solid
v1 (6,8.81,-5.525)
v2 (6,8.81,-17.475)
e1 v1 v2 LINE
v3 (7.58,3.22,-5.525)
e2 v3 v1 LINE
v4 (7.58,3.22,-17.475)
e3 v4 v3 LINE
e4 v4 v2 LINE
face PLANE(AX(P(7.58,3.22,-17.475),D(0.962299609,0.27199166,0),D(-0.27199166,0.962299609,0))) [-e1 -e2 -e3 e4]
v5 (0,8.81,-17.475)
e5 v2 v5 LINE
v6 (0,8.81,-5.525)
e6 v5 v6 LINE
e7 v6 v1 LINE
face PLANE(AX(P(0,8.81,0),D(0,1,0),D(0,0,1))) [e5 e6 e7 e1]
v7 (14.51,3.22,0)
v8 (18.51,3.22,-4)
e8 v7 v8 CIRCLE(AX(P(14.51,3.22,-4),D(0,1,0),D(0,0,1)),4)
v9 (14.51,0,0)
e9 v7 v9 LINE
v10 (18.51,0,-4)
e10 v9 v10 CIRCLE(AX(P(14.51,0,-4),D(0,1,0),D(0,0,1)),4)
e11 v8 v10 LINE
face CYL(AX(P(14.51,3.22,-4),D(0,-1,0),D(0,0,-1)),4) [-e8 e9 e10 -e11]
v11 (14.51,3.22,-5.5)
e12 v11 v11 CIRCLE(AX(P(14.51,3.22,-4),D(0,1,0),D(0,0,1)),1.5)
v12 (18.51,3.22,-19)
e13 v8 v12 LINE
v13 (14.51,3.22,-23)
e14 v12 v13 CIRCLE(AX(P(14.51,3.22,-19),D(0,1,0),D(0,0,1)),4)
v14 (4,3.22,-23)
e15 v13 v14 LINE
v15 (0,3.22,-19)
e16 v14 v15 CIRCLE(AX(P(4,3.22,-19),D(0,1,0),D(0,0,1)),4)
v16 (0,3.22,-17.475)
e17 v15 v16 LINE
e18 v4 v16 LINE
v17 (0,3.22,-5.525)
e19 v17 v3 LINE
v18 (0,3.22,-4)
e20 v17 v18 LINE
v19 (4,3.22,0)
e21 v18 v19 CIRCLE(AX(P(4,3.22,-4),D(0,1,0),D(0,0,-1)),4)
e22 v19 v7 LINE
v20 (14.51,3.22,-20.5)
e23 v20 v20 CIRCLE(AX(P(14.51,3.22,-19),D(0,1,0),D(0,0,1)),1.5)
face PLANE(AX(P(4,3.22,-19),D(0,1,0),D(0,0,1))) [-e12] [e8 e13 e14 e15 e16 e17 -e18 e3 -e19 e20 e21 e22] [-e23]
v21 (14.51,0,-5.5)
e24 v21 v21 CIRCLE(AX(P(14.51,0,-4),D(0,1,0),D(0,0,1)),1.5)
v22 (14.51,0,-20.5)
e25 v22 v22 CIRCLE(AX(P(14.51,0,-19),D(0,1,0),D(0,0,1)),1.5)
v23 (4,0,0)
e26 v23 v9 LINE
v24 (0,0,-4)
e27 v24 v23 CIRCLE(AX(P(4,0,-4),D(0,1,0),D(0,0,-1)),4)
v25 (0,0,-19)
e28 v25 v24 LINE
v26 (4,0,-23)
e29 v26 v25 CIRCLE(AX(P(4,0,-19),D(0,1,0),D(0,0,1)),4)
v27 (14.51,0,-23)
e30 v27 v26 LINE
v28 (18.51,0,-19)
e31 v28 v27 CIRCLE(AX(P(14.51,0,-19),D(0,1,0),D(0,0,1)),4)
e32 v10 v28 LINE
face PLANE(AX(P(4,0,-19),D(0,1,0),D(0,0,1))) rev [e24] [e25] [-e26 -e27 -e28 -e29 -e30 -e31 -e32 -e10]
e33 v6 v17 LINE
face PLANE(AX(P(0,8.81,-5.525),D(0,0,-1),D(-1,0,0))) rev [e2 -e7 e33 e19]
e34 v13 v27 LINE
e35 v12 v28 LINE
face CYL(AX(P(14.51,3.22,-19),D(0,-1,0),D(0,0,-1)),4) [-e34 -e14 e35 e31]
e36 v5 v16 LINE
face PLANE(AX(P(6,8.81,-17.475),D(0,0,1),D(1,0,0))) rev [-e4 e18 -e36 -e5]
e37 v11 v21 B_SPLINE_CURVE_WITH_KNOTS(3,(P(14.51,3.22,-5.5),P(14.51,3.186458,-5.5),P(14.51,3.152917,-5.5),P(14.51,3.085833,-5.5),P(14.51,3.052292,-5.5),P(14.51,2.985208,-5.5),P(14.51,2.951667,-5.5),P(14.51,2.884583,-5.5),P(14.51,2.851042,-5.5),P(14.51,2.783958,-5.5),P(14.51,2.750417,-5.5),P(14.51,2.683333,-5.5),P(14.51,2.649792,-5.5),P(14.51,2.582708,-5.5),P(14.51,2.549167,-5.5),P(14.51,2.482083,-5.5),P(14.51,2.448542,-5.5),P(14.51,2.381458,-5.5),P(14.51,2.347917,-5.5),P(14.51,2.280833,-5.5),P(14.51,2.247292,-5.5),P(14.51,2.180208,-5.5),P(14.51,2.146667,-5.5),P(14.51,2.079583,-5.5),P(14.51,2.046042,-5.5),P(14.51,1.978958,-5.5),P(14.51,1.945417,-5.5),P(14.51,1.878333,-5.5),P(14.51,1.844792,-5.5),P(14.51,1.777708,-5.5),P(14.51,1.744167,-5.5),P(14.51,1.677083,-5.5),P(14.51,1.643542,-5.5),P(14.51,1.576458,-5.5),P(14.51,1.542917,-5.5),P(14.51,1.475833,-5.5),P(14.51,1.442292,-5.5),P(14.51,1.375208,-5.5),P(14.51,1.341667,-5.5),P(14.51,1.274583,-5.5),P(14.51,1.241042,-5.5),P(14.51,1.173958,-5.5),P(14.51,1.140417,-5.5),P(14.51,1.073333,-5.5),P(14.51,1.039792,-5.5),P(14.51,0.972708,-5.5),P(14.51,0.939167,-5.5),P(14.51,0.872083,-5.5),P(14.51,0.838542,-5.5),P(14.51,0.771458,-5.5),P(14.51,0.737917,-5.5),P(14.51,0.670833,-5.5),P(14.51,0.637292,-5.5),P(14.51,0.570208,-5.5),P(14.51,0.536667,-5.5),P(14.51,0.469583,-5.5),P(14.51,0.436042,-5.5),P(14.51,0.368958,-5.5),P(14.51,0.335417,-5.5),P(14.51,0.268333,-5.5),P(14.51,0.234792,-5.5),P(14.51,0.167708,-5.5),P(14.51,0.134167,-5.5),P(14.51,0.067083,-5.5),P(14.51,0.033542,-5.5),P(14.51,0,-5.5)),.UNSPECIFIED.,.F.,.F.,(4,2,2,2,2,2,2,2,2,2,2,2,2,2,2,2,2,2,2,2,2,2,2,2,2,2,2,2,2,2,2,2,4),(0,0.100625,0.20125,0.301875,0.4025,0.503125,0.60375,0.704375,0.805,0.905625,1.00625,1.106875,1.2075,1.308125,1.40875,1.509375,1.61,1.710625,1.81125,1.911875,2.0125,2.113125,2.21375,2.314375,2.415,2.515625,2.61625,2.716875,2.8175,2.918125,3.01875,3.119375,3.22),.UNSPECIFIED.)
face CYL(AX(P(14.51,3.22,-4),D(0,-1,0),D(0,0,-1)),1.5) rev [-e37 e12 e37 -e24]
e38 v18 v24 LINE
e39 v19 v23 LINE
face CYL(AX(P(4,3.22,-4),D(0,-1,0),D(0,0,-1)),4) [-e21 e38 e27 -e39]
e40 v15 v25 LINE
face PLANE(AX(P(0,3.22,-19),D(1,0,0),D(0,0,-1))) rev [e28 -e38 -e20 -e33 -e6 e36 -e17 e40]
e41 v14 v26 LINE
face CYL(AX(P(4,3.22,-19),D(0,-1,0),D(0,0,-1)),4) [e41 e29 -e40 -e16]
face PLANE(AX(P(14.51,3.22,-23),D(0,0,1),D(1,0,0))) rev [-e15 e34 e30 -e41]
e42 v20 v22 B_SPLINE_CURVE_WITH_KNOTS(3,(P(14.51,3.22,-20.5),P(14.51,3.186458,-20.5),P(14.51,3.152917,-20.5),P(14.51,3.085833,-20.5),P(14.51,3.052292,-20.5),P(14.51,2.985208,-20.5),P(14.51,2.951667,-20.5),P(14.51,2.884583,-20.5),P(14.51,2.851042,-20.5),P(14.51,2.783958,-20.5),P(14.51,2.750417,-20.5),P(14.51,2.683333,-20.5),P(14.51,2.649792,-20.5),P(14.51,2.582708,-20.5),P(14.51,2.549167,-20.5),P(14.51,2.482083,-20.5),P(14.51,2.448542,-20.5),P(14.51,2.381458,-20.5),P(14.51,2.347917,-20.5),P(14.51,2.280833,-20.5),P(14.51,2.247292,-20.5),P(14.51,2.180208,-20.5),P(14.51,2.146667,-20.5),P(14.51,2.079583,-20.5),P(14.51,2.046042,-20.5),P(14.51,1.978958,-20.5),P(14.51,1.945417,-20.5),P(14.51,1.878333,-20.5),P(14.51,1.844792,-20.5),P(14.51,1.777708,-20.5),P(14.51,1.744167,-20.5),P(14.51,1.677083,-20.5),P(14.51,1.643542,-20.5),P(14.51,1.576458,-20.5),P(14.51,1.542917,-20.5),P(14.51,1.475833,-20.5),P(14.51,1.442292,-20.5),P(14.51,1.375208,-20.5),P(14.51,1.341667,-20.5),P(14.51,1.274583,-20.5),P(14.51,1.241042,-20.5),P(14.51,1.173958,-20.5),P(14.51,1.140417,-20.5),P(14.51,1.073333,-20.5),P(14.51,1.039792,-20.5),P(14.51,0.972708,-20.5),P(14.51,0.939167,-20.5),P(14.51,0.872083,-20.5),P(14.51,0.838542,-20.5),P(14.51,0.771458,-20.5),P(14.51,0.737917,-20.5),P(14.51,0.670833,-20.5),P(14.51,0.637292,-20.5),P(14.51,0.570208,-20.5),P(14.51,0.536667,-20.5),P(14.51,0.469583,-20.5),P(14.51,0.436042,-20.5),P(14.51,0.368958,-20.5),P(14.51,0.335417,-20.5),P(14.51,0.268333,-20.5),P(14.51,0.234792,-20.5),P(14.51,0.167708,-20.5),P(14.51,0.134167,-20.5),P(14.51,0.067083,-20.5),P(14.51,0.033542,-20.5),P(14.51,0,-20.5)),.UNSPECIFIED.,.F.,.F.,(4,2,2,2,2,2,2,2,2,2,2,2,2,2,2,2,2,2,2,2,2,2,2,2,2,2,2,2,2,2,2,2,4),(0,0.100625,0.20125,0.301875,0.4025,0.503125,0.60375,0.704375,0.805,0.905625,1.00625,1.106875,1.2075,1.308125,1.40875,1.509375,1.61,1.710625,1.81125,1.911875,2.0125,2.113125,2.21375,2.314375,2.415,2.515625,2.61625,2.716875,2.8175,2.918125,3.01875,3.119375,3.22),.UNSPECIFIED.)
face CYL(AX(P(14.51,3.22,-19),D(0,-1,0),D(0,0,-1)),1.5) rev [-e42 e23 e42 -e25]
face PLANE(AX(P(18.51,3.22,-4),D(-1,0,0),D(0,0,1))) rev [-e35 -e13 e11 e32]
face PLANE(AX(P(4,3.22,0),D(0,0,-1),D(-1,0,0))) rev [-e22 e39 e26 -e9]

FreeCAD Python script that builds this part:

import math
import FreeCAD as App
import Part
import Sketcher

V = App.Vector
Q = App.Units.Quantity


def add_polygon(sketch, points):
    """Adds a closed chain of lines whose ends are joined by coincident constraints."""
    first, n = sketch.GeometryCount, len(points)
    for a, b in zip(points, points[1:] + points[:1]):
        sketch.addGeometry(Part.LineSegment(App.Vector(*a, 0), App.Vector(*b, 0)), False)
    for i in range(n):
        sketch.addConstraint(Sketcher.Constraint("Coincident", first + i, 2, first + (i + 1) % n, 1))

doc = App.newDocument("Part")
body = doc.addObject("PartDesign::Body", "Body")

# Sketch on XZ plane
sketch1 = doc.addObject("Sketcher::SketchObject", "Sketch")
body.addObject(sketch1)
sketch1.AttachmentSupport = (doc.XZ_Plane, [""])
sketch1.MapMode = "FlatFace"
sketch1.addGeometry([
    Part.LineSegment(V(4, 0, 0), V(14.51, 0, 0)),  # 0
    Part.ArcOfCircle(Part.Circle(V(14.51, -4, 0), V(0, 0, 1), 4), math.radians(0), math.radians(90)),  # 1
    Part.LineSegment(V(18.51, -4, 0), V(18.51, -19, 0)),  # 2
    Part.ArcOfCircle(Part.Circle(V(14.51, -19, 0), V(0, 0, 1), 4), math.radians(-90), math.radians(0)),  # 3
    Part.LineSegment(V(14.51, -23, 0), V(4, -23, 0)),  # 4
    Part.ArcOfCircle(Part.Circle(V(4, -19, 0), V(0, 0, 1), 4), math.radians(180), math.radians(270)),  # 5
    Part.LineSegment(V(0, -19, 0), V(0, -4, 0)),  # 6
    Part.ArcOfCircle(Part.Circle(V(4, -4, 0), V(0, 0, 1), 4), math.radians(90), math.radians(180)),  # 7
    Part.Circle(V(14.51, -4, 0), V(0, 0, 1), 1.5),  # 8
    Part.Circle(V(14.51, -19, 0), V(0, 0, 1), 1.5),  # 9
], False)
sketch1.addConstraint([
    Sketcher.Constraint("Tangent", 0, 2, 1, 2),
    Sketcher.Constraint("Tangent", 1, 1, 2, 1),
    Sketcher.Constraint("Tangent", 2, 2, 3, 2),
    Sketcher.Constraint("Tangent", 3, 1, 4, 1),
    Sketcher.Constraint("Tangent", 4, 2, 5, 2),
    Sketcher.Constraint("Tangent", 5, 1, 6, 1),
    Sketcher.Constraint("Tangent", 6, 2, 7, 2),
    Sketcher.Constraint("Tangent", 7, 1, 0, 1),
    Sketcher.Constraint("Horizontal", 0),
    Sketcher.Constraint("Vertical", 2),
    Sketcher.Constraint("Horizontal", 4),
    Sketcher.Constraint("Vertical", 6),
    Sketcher.Constraint("Coincident", 8, 3, 1, 3),
    Sketcher.Constraint("Coincident", 9, 3, 3, 3),
    Sketcher.Constraint("Equal", 1, 3),
    Sketcher.Constraint("Equal", 3, 5),
    Sketcher.Constraint("Equal", 5, 7),
    Sketcher.Constraint("Equal", 8, 9),
    Sketcher.Constraint("PointOnObject", 0, 2, -1),
    Sketcher.Constraint("PointOnObject", 5, 1, -2),
    Sketcher.Constraint("Diameter", 8, Q("3 mm")),
    Sketcher.Constraint("Radius", 1, Q("4 mm")),
    Sketcher.Constraint("DistanceY", 2, 2, 2, 1, Q("15 mm")),
    Sketcher.Constraint("DistanceX", 0, 1, 0, 2, Q("10.51 mm")),
])
pad1 = doc.addObject("PartDesign::Pad", "Pad")
body.addObject(pad1)
pad1.Profile = sketch1
pad1.Length = 3.22
pad1.Reversed = True

# Sketch on XZ plane
sketch2 = doc.addObject("Sketcher::SketchObject", "Sketch001")
body.addObject(sketch2)
sketch2.AttachmentSupport = (doc.XZ_Plane, [""])
sketch2.MapMode = "FlatFace"
sketch2.AttachmentOffset = App.Placement(V(0, 0, -3.22), App.Rotation())
add_polygon(sketch2, [(0, -17.475), (0, -5.525), (6, -5.525), (6, -17.475)])  # lines 0-3
sketch2.addConstraint([
    Sketcher.Constraint("Vertical", 0),
    Sketcher.Constraint("Horizontal", 1),
    Sketcher.Constraint("Vertical", 2),
    Sketcher.Constraint("Horizontal", 3),
    Sketcher.Constraint("PointOnObject", 0, 2, -2),
    Sketcher.Constraint("DistanceX", 1, 1, 1, 2, Q("6 mm")),
    Sketcher.Constraint("DistanceY", 0, 1, 0, 2, Q("11.95 mm")),
    Sketcher.Constraint("DistanceY", 0, 2, -1, 1, Q("5.525 mm")),
])
pad2 = doc.addObject("PartDesign::Pad", "Pad001")
body.addObject(pad2)
pad2.Profile = sketch2
pad2.Length = 5.59
pad2.Reversed = True

# Sketch on XY plane
sketch3 = doc.addObject("Sketcher::SketchObject", "Sketch002")
body.addObject(sketch3)
sketch3.AttachmentSupport = (doc.XY_Plane, [""])
sketch3.MapMode = "FlatFace"
sketch3.AttachmentOffset = App.Placement(V(0, 0, -5.525), App.Rotation())
add_polygon(sketch3, [(0, 3.22), (7.58, 3.22), (6, 8.81), (0, 8.81)])  # lines 0-3
sketch3.addConstraint([
    Sketcher.Constraint("Horizontal", 0),
    Sketcher.Constraint("Horizontal", 2),
    Sketcher.Constraint("Vertical", 3),
    Sketcher.Constraint("PointOnObject", 2, 2, -2),
    Sketcher.Constraint("DistanceX", 2, 2, 2, 1, Q("6 mm")),
    Sketcher.Constraint("DistanceX", 0, 1, 0, 2, Q("7.58 mm")),
    Sketcher.Constraint("DistanceY", 3, 2, 3, 1, Q("5.59 mm")),
    Sketcher.Constraint("DistanceY", -1, 1, 0, 2, Q("3.22 mm")),
])
pad3 = doc.addObject("PartDesign::Pad", "Pad002")
body.addObject(pad3)
pad3.Profile = sketch3
pad3.Length = 11.95
pad3.Reversed = True

doc.recompute()
